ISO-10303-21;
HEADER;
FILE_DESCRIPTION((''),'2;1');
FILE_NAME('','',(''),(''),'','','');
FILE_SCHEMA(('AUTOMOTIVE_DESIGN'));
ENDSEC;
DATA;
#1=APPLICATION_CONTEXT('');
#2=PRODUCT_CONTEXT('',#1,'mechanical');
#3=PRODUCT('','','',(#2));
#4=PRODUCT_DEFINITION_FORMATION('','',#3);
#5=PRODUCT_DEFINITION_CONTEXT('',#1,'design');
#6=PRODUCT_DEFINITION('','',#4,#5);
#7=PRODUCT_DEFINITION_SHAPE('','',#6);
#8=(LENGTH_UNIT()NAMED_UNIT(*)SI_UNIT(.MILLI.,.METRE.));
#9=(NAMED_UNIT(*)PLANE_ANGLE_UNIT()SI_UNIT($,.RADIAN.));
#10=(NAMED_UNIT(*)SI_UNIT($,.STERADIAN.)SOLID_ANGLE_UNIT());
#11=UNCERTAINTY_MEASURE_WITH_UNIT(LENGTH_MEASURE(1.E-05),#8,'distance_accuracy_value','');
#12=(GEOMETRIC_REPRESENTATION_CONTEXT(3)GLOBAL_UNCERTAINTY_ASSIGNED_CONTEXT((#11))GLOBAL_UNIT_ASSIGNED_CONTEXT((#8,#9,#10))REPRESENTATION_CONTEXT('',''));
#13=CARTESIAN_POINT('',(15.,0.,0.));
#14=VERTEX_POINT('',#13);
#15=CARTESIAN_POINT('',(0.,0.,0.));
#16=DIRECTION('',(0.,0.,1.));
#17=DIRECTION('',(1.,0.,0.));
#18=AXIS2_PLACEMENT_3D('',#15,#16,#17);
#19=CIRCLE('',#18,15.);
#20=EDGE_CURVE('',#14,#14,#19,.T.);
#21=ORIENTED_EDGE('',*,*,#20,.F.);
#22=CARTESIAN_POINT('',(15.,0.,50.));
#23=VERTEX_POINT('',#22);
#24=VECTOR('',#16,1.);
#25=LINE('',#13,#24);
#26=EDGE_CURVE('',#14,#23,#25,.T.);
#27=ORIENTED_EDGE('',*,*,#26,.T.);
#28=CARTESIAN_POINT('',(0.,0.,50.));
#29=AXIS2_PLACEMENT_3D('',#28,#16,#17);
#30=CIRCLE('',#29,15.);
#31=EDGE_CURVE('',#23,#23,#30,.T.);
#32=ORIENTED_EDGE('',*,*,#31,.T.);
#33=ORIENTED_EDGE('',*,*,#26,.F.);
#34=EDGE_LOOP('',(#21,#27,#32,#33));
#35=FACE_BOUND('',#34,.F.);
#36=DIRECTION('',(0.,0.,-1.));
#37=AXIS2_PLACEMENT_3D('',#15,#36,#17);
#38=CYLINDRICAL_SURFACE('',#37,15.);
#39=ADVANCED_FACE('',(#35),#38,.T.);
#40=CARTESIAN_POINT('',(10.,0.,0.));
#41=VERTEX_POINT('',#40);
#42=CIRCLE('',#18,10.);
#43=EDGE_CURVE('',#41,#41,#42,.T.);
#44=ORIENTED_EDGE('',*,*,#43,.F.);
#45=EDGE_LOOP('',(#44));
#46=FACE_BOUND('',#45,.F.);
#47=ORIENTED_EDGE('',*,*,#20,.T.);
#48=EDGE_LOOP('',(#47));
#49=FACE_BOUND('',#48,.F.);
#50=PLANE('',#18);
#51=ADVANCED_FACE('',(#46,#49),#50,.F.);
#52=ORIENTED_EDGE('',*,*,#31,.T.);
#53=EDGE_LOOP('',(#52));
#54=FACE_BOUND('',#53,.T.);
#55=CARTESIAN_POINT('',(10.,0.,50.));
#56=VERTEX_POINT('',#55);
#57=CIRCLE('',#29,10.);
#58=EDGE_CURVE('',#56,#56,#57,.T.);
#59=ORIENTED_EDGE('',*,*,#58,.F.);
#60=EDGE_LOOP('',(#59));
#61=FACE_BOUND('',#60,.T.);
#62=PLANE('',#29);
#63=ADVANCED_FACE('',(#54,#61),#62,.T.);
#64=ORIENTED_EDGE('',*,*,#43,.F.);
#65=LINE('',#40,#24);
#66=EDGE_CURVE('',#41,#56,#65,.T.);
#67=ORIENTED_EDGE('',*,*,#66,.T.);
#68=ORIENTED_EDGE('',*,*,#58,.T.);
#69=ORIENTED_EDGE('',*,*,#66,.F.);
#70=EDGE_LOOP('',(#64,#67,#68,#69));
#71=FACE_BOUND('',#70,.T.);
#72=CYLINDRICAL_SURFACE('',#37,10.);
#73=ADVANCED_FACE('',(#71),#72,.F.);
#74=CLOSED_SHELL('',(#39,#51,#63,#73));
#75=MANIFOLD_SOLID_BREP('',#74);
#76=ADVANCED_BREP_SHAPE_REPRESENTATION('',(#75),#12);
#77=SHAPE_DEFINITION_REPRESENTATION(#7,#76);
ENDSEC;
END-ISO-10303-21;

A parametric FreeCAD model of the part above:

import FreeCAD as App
import Part
import Sketcher
Q = App.Units.Quantity

doc = App.newDocument("Part")
body = doc.addObject("PartDesign::Body", "Body")

# Sketch on XY plane
sketch1 = body.newObject("Sketcher::SketchObject", "Sketch")
sketch1.AttachmentSupport = (doc.getObject("XY_Plane"), [""])
sketch1.MapMode = "FlatFace"
sketch1.addGeometry([
    Part.Circle(App.Vector(0, 0, 0), App.Vector(0, 0, 1), 15),
    Part.Circle(App.Vector(0, 0, 0), App.Vector(0, 0, 1), 10),
], False)
sketch1.addConstraint([
    Sketcher.Constraint("Coincident", 0, 3, -1, 1),
    Sketcher.Constraint("Coincident", 1, 3, -1, 1),
    Sketcher.Constraint("Diameter", 0, Q("30 mm")),
    Sketcher.Constraint("Diameter", 1, Q("20 mm")),
])
pad1 = body.newObject("PartDesign::Pad", "Pad")
pad1.Profile = sketch1
pad1.Length = 50

doc.recompute()
